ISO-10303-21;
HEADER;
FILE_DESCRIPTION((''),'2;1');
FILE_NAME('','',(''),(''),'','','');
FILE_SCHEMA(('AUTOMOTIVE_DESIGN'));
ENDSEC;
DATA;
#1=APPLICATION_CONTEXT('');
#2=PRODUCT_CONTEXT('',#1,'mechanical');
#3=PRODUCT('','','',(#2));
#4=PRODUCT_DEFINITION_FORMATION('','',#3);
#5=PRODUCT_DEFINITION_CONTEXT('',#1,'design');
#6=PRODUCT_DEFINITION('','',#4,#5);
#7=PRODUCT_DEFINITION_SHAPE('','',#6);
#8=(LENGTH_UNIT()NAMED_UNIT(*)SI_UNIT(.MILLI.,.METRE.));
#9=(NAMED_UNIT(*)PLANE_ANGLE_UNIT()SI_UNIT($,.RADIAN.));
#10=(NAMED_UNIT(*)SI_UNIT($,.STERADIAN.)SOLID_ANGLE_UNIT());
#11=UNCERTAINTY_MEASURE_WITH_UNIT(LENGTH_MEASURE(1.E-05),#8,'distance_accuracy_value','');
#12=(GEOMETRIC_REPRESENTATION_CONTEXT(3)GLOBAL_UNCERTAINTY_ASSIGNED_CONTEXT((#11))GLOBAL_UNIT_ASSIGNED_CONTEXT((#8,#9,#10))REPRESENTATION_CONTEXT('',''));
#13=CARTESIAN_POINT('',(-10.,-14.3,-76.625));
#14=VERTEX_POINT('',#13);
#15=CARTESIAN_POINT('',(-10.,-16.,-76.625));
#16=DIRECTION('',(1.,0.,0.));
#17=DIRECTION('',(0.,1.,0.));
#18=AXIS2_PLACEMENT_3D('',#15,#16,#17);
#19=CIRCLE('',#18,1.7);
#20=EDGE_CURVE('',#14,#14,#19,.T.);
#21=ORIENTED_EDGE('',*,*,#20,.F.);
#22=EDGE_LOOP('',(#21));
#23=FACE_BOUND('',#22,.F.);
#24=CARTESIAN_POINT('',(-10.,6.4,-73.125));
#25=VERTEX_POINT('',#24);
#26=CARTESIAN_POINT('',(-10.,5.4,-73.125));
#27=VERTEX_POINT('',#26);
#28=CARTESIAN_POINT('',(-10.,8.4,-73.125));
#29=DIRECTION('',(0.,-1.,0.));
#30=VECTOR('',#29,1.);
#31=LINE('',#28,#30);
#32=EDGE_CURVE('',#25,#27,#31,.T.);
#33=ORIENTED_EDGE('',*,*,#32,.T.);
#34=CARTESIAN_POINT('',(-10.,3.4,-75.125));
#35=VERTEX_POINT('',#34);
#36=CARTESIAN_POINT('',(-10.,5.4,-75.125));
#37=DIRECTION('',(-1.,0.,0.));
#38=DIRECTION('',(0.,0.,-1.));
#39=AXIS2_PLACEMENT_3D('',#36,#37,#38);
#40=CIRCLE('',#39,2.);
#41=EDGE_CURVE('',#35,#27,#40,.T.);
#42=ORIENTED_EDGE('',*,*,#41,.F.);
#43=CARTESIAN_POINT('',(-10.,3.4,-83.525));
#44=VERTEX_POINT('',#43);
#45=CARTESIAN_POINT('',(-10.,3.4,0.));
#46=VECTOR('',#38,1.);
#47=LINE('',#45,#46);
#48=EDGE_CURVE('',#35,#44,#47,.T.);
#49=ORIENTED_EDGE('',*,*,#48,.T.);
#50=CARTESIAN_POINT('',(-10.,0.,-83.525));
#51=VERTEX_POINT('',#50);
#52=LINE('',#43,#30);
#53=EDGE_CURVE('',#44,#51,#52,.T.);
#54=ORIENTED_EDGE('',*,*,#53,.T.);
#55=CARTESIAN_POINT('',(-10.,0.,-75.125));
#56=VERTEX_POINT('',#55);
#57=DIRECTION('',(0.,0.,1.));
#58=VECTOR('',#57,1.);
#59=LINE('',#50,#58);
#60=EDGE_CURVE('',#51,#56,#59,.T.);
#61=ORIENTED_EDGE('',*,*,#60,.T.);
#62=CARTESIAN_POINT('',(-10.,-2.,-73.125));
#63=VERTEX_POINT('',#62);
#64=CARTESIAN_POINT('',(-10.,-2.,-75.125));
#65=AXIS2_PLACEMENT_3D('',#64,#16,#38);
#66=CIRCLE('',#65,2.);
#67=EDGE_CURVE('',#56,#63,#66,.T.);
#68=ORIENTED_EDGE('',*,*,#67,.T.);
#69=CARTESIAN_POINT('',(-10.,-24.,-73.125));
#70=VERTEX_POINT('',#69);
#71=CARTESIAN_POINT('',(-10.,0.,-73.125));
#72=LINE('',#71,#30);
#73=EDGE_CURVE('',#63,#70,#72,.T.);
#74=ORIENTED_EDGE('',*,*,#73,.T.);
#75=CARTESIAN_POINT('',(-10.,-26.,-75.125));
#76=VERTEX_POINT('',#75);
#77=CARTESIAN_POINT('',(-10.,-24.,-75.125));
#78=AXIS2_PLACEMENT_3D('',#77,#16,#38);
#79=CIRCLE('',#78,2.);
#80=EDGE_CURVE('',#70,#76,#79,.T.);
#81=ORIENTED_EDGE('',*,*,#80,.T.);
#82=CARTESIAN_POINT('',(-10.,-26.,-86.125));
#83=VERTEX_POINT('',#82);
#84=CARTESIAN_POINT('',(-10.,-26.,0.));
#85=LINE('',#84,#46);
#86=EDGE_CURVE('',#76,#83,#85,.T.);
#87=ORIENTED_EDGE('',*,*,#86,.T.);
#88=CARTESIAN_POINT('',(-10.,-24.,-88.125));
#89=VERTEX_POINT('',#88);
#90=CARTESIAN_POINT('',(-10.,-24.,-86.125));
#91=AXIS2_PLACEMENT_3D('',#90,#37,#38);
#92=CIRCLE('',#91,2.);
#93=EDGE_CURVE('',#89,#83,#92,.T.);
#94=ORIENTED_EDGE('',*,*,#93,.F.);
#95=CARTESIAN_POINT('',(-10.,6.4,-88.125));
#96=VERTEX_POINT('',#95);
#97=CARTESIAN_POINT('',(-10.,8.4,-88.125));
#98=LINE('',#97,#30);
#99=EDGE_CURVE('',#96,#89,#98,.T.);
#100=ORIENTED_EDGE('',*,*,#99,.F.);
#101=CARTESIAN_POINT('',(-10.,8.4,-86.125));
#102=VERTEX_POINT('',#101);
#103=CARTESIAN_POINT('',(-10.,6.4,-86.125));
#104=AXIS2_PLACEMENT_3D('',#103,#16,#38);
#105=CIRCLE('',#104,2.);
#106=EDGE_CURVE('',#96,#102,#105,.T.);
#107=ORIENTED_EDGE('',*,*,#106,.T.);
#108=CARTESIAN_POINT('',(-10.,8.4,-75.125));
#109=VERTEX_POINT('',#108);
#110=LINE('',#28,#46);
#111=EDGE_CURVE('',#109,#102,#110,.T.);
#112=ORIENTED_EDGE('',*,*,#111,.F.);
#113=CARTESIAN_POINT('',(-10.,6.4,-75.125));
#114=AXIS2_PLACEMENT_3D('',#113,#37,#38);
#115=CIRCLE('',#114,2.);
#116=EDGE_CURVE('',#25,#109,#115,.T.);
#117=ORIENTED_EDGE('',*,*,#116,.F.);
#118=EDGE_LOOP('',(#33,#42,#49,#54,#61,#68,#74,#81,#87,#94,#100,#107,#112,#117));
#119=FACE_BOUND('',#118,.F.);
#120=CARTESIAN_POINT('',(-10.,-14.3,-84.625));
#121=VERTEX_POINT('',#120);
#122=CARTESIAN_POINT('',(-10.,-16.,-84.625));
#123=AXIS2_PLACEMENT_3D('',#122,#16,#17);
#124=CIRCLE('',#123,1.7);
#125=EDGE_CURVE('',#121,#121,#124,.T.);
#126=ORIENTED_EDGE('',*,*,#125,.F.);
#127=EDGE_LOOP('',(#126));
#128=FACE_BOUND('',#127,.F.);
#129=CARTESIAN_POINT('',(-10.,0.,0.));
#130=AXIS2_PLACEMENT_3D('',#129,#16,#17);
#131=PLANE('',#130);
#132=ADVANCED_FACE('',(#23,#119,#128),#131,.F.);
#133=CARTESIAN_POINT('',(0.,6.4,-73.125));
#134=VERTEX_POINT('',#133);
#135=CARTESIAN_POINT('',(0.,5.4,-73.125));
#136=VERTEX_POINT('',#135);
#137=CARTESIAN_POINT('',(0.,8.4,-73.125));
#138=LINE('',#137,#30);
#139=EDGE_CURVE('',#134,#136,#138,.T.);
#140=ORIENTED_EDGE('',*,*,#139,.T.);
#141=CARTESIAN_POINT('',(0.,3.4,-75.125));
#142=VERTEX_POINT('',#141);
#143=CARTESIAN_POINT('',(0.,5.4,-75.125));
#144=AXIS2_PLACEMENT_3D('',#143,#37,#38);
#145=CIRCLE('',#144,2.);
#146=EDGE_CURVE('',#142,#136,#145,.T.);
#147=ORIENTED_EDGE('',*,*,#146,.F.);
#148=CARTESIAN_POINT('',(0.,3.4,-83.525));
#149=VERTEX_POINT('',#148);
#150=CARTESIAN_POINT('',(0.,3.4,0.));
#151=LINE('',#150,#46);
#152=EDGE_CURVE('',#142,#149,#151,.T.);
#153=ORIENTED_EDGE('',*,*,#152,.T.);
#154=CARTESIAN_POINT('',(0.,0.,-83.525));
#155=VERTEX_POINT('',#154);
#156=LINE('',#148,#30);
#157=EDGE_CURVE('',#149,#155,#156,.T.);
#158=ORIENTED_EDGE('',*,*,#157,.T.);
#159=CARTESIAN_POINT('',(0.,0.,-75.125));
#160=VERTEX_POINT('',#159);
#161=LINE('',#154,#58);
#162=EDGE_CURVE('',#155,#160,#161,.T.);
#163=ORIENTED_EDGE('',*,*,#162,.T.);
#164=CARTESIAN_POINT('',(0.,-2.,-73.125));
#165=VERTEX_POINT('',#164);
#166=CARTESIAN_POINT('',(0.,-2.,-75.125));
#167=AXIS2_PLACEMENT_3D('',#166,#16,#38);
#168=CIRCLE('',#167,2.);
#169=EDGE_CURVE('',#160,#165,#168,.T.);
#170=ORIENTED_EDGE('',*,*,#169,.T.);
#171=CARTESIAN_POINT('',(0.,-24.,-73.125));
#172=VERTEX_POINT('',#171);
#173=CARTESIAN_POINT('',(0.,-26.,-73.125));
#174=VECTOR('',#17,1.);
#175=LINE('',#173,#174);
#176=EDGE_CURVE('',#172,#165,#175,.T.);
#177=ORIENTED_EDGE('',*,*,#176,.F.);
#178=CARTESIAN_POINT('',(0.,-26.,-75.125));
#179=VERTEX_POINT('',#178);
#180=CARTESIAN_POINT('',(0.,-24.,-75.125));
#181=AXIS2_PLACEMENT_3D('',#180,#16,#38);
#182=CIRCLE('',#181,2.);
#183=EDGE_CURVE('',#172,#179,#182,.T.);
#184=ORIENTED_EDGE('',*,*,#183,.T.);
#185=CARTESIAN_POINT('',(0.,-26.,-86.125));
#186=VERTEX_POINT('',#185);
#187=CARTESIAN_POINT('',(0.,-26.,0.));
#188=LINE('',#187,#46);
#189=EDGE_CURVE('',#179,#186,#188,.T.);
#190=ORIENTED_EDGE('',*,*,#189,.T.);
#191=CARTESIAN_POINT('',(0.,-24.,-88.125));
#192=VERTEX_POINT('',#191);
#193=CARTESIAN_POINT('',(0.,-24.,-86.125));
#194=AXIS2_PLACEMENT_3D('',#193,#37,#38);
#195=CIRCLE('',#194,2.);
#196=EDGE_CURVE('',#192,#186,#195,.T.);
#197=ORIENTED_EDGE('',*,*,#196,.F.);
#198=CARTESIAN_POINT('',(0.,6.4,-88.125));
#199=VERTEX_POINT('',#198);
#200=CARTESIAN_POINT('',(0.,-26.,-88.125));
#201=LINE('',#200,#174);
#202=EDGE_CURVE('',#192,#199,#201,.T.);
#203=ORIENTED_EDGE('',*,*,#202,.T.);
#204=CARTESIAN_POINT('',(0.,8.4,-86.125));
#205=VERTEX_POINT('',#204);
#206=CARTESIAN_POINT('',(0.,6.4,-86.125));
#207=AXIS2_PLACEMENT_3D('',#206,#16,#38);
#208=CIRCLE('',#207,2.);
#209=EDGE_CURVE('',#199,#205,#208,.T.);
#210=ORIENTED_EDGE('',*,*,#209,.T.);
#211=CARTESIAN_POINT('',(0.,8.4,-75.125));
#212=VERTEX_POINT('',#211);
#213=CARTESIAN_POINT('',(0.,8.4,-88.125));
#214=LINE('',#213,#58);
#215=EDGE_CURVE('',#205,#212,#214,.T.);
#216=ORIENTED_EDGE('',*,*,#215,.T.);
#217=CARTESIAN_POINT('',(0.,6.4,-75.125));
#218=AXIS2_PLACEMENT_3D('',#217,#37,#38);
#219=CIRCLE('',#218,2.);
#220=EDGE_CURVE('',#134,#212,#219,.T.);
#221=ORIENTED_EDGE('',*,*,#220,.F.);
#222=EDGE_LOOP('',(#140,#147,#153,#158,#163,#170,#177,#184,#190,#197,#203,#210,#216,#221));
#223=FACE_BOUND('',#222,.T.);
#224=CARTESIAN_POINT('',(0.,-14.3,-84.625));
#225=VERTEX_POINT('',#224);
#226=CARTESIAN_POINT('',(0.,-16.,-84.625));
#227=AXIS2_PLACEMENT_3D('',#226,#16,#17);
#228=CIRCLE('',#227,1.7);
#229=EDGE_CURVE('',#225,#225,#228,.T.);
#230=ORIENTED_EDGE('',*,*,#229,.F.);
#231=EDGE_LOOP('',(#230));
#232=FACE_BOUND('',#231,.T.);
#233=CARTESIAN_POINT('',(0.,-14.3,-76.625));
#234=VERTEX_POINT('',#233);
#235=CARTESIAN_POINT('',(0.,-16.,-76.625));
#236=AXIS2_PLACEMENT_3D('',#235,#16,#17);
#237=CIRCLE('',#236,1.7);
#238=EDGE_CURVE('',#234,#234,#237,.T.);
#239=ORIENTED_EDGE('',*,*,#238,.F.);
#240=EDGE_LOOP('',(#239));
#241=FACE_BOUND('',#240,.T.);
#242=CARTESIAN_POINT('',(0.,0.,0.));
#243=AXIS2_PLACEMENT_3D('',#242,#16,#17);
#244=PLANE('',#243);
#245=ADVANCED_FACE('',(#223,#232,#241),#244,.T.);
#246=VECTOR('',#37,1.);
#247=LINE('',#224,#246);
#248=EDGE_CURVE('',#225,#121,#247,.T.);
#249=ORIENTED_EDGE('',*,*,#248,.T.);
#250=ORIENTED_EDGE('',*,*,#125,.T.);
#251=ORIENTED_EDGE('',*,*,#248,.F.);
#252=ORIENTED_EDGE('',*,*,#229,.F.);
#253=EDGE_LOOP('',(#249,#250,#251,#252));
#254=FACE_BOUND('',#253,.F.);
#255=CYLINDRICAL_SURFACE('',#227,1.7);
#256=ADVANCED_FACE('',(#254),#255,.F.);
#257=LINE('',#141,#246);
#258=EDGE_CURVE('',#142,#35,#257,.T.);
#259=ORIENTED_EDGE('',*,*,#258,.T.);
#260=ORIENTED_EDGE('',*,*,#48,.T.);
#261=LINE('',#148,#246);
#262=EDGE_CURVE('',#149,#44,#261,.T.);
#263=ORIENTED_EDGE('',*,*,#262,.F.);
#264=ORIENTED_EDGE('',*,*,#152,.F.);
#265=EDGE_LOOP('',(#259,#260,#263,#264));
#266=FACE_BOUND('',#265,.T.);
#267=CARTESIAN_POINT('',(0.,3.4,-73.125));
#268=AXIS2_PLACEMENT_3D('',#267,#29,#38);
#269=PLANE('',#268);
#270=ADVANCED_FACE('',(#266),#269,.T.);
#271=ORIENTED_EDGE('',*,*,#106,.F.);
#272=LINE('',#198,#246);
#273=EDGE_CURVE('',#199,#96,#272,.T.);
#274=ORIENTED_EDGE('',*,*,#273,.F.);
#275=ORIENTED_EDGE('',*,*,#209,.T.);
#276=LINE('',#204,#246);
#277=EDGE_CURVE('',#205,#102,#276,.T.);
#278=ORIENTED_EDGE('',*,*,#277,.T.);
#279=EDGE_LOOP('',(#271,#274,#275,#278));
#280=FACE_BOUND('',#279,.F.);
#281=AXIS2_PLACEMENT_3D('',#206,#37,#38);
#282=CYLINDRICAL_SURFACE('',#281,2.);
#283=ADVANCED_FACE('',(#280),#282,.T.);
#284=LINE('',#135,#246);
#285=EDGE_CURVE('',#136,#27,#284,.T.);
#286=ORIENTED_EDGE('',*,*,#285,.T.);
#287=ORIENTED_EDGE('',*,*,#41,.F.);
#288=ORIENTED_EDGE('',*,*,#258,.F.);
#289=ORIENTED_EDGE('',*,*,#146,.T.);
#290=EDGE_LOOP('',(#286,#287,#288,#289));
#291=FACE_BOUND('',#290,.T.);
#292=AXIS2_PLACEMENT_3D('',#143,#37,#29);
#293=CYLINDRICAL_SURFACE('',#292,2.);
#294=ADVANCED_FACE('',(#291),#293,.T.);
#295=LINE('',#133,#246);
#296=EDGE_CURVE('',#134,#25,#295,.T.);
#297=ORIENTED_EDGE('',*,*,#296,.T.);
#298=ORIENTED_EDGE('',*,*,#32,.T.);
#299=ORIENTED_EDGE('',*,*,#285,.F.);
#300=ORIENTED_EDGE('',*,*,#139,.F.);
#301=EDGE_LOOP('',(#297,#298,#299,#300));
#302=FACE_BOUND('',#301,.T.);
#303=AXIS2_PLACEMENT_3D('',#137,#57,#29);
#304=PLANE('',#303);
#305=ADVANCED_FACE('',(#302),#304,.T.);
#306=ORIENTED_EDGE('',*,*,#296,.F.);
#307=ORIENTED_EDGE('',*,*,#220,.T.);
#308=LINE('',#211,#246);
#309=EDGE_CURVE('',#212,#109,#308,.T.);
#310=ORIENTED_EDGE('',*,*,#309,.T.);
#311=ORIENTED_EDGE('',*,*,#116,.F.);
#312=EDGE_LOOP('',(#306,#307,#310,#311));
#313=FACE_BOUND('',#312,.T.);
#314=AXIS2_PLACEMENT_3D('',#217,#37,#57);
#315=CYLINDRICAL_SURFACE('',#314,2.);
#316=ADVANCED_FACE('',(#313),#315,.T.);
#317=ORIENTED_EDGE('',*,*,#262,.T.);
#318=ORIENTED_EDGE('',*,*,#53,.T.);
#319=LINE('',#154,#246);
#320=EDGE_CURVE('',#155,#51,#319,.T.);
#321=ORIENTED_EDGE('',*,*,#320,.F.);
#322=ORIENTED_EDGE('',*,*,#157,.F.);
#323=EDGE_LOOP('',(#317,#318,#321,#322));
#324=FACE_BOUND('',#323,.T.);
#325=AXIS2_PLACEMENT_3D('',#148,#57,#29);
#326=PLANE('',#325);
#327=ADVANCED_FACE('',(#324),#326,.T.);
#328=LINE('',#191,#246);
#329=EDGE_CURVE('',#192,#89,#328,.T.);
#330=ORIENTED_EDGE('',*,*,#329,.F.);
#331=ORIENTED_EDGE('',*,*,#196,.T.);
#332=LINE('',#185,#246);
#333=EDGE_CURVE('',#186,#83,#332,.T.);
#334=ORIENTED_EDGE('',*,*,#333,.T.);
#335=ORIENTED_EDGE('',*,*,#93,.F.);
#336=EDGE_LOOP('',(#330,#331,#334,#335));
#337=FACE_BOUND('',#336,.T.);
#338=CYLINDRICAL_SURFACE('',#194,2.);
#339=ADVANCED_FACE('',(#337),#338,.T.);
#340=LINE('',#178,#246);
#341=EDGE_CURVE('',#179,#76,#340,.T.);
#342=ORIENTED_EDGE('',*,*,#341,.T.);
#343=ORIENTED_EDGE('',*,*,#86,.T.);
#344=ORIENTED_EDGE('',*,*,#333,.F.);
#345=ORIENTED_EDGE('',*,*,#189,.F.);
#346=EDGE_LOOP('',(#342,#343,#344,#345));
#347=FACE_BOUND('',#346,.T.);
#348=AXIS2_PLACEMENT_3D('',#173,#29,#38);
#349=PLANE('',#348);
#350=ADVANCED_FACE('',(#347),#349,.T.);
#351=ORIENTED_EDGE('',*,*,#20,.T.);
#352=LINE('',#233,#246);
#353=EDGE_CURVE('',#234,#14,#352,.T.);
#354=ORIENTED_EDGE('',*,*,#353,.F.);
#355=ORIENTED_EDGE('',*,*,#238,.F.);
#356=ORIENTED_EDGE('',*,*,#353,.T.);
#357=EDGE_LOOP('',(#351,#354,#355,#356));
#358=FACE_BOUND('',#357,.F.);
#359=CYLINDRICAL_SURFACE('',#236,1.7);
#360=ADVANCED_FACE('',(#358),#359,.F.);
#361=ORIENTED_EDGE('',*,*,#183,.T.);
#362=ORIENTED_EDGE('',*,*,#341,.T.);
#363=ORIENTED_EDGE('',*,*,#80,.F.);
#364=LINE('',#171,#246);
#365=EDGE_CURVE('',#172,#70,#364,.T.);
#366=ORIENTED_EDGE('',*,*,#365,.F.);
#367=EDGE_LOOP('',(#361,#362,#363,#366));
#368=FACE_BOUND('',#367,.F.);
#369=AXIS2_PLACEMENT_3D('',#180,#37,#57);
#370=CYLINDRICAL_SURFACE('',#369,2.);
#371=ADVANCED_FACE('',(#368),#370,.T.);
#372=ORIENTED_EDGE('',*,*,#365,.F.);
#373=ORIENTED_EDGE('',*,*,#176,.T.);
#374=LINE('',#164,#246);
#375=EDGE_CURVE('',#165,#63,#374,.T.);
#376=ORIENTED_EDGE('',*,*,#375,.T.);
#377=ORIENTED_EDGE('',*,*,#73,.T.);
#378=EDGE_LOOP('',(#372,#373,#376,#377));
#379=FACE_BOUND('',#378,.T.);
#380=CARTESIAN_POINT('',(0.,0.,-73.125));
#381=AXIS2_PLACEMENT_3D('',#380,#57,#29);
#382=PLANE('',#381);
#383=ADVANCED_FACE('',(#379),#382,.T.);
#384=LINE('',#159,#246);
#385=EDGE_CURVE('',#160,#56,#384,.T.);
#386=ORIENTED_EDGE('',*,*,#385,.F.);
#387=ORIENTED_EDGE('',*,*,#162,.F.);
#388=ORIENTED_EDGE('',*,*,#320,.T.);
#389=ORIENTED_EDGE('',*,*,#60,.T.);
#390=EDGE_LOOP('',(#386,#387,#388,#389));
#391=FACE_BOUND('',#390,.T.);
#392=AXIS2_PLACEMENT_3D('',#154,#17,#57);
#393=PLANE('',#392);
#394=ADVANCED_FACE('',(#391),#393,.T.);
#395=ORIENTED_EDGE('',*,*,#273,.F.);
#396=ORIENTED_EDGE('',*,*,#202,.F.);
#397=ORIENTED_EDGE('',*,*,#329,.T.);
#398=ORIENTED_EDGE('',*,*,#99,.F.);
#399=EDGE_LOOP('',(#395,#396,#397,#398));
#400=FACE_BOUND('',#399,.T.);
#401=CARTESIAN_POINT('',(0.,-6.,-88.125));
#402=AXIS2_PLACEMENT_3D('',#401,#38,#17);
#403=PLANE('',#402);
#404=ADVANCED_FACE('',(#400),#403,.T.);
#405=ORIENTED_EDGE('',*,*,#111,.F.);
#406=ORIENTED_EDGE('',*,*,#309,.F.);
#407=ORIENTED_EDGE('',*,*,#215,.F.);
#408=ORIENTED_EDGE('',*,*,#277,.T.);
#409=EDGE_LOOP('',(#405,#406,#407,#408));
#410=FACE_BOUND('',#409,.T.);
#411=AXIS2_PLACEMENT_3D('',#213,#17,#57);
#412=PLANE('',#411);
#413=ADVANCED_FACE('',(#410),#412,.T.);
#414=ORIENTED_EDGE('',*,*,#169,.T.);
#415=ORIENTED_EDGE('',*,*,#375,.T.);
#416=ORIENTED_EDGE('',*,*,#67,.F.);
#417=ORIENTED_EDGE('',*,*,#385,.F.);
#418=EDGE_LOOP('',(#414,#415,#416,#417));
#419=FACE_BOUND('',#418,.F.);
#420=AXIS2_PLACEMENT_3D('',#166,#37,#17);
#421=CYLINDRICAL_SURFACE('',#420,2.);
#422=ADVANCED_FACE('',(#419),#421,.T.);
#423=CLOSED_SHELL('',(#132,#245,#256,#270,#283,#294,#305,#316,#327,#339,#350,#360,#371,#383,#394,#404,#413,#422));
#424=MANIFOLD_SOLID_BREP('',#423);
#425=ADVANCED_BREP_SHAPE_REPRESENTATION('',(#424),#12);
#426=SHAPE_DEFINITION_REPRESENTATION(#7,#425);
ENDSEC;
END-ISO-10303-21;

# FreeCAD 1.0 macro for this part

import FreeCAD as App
import Part
import Sketcher

V = App.Vector
Q = App.Units.Quantity


def edges_at(feature, points):
    """Names of the edges that pass closest to the given points."""
    edges = feature.Shape.Edges
    near = lambda p: min(range(len(edges)), key=lambda i: edges[i].distToShape(Part.Vertex(*p))[0])
    return sorted({f"Edge{near(p) + 1}" for p in points})

doc = App.newDocument("Part")
body = doc.addObject("PartDesign::Body", "Body")

# Sketch on YZ plane
sketch1 = body.newObject("Sketcher::SketchObject", "Sketch")
sketch1.AttachmentSupport = (doc.getObject("YZ_Plane"), [""])
sketch1.MapMode = "FlatFace"
sketch1.addGeometry([
    Part.LineSegment(V(0, -83.5, 0), V(0, -73.1, 0)),  # 0
    Part.LineSegment(V(0, -73.1, 0), V(-26, -73.1, 0)),  # 1
    Part.LineSegment(V(-26, -73.1, 0), V(-26, -88.1, 0)),  # 2
    Part.LineSegment(V(-26, -88.1, 0), V(8.4, -88.1, 0)),  # 3
    Part.LineSegment(V(8.4, -88.1, 0), V(8.4, -73.1, 0)),  # 4
    Part.LineSegment(V(8.4, -73.1, 0), V(3.4, -73.1, 0)),  # 5
    Part.LineSegment(V(3.4, -73.1, 0), V(3.4, -83.5, 0)),  # 6
    Part.LineSegment(V(3.4, -83.5, 0), V(0, -83.5, 0)),  # 7
    Part.Circle(V(-16, -76.6, 0), V(0, 0, 1), 1.7),  # 8
    Part.Circle(V(-16, -84.6, 0), V(0, 0, 1), 1.7),  # 9
], False)
sketch1.addConstraint([
    Sketcher.Constraint("Coincident", 0, 2, 1, 1),
    Sketcher.Constraint("Coincident", 1, 2, 2, 1),
    Sketcher.Constraint("Coincident", 2, 2, 3, 1),
    Sketcher.Constraint("Coincident", 3, 2, 4, 1),
    Sketcher.Constraint("Coincident", 4, 2, 5, 1),
    Sketcher.Constraint("Coincident", 5, 2, 6, 1),
    Sketcher.Constraint("Coincident", 6, 2, 7, 1),
    Sketcher.Constraint("Coincident", 7, 2, 0, 1),
    Sketcher.Constraint("Vertical", 0),
    Sketcher.Constraint("Horizontal", 1),
    Sketcher.Constraint("Vertical", 2),
    Sketcher.Constraint("Horizontal", 3),
    Sketcher.Constraint("Vertical", 4),
    Sketcher.Constraint("Horizontal", 5),
    Sketcher.Constraint("Vertical", 6),
    Sketcher.Constraint("Horizontal", 7),
    Sketcher.Constraint("Equal", 8, 9),
    Sketcher.Constraint("PointOnObject", 0, 2, -2),
    Sketcher.Constraint("Horizontal", 1, 2, 4, 2),
    Sketcher.Constraint("Vertical", 8, 3, 9, 3),
    Sketcher.Constraint("Diameter", 8, Q("3.4 mm")),
    Sketcher.Constraint("DistanceX", 5, 2, 5, 1, Q("5 mm")),
    Sketcher.Constraint("DistanceX", 7, 2, 7, 1, Q("3.4 mm")),
    Sketcher.Constraint("DistanceY", 0, 1, 0, 2, Q("10.4 mm")),
    Sketcher.Constraint("DistanceY", 9, 3, 8, 3, Q("8 mm")),
    Sketcher.Constraint("DistanceX", 1, 2, 8, 3, Q("10 mm")),
    Sketcher.Constraint("DistanceY", 8, 3, 0, 2, Q("3.5 mm")),
    Sketcher.Constraint("DistanceY", 2, 2, 9, 3, Q("3.5 mm")),
    Sketcher.Constraint("DistanceX", 1, 2, 1, 1, Q("26 mm")),
    Sketcher.Constraint("DistanceY", 8, 3, -1, 1, Q("76.625 mm")),
])
pad1 = body.newObject("PartDesign::Pad", "Pad")
pad1.Profile = sketch1
pad1.Length = 10
pad1.Reversed = True
doc.recompute()

fillet = body.newObject("PartDesign::Fillet", "Fillet")
fillet.Base = (pad1, edges_at(pad1, [
    (-5, 8.4, -73.125),
    (-5, 3.4, -73.125),
    (-5, 0, -73.125),
    (-5, -26, -73.125),
    (-5, -26, -88.125),
    (-5, 8.4, -88.125),
]))
fillet.Radius = 2

doc.recompute()
